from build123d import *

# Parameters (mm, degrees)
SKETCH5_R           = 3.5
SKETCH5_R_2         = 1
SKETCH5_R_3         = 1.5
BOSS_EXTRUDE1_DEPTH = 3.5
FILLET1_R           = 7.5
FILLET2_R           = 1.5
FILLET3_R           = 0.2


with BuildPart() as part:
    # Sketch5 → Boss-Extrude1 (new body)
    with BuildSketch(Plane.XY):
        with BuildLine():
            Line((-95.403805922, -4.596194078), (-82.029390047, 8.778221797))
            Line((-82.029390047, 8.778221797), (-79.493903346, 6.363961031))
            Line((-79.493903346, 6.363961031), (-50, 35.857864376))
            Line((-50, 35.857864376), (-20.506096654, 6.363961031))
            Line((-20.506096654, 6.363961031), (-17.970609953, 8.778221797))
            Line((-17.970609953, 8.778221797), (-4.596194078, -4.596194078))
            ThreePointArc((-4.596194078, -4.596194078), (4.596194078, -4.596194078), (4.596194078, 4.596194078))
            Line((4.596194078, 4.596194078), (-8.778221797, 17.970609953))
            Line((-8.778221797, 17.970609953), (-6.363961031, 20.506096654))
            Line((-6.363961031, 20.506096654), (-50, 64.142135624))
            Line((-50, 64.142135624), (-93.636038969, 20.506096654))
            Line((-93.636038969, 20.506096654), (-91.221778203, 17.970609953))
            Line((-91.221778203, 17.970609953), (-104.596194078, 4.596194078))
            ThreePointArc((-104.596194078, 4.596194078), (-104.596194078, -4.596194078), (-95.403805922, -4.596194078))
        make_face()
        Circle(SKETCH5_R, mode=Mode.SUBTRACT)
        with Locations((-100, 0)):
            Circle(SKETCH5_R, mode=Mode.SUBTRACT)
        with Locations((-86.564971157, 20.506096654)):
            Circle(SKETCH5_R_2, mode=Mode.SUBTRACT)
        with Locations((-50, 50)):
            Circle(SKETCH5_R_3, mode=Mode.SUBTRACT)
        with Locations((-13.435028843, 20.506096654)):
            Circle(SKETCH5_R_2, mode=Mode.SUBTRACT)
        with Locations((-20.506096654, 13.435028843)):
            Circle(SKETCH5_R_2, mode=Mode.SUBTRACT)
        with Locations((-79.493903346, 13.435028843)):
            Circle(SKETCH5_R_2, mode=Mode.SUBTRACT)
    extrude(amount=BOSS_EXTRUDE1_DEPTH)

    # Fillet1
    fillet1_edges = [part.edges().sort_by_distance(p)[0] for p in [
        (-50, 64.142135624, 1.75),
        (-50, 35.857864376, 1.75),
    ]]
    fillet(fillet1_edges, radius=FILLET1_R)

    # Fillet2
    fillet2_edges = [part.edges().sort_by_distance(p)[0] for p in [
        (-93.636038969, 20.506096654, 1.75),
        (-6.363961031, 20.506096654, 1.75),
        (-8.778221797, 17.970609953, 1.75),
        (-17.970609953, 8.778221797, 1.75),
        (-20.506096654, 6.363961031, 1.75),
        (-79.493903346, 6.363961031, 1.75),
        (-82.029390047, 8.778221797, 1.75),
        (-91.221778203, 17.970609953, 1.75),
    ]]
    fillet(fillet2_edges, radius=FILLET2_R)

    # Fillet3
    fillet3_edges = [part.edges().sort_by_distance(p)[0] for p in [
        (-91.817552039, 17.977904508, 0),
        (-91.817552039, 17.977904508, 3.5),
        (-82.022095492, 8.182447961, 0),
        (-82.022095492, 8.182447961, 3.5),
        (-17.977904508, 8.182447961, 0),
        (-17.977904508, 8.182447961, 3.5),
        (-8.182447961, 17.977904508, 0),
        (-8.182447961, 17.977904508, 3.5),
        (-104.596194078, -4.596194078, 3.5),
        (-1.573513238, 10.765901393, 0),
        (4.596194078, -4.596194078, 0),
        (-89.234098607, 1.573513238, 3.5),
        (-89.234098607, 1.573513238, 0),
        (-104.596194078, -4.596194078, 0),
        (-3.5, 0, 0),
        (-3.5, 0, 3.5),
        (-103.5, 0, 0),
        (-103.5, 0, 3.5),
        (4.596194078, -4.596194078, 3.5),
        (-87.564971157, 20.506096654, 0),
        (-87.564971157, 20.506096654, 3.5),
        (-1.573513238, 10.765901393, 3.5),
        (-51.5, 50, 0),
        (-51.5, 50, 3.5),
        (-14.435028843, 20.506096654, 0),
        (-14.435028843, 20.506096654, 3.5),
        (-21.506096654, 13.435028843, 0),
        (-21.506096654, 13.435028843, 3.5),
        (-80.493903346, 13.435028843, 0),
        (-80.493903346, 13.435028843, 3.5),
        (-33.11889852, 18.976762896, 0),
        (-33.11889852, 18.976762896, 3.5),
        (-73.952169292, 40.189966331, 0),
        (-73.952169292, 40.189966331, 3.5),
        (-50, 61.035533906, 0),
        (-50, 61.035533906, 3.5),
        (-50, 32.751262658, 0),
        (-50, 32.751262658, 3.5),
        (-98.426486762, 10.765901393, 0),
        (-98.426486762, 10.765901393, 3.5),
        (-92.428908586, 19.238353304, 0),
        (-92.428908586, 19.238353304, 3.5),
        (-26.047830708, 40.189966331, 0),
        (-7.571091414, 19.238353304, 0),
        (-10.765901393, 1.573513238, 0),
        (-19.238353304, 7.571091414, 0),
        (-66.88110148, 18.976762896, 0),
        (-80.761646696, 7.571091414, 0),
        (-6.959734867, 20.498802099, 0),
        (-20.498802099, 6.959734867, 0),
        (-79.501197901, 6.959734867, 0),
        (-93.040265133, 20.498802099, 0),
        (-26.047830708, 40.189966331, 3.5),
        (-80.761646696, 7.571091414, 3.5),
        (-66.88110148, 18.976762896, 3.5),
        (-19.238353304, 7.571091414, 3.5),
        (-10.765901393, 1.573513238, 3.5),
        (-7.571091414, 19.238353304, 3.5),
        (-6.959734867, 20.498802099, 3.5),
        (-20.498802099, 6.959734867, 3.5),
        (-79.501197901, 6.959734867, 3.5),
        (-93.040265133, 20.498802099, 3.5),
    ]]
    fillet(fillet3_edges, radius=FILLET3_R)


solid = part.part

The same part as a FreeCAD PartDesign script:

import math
import FreeCAD as App
import Part
import Sketcher
from FreeCAD import Vector
Q = App.Units.Quantity


def edges_at(feature, points):
    """Names of the edges that pass closest to the given points."""
    edges = feature.Shape.Edges
    near = lambda p: min(range(len(edges)), key=lambda i: edges[i].distToShape(Part.Vertex(*p))[0])
    return sorted({f"Edge{near(p) + 1}" for p in points})

doc = App.newDocument("Part")
body = doc.addObject("PartDesign::Body", "Body")

# Sketch on XY plane
sketch1 = doc.addObject("Sketcher::SketchObject", "Sketch")
body.addObject(sketch1)
sketch1.AttachmentSupport = (doc.XY_Plane, [""])
sketch1.MapMode = "FlatFace"
sketch1.addGeometry(Part.LineSegment(Vector(-95.403806, -4.596194, 0), Vector(-82.02939, 8.778222, 0)), False)
sketch1.addGeometry(Part.LineSegment(Vector(-82.02939, 8.778222, 0), Vector(-79.493903, 6.363961, 0)), False)
sketch1.addGeometry(Part.LineSegment(Vector(-79.493903, 6.363961, 0), Vector(-50, 35.857864, 0)), False)
sketch1.addGeometry(Part.LineSegment(Vector(-50, 35.857864, 0), Vector(-20.506097, 6.363961, 0)), False)
sketch1.addGeometry(Part.LineSegment(Vector(-20.506097, 6.363961, 0), Vector(-17.97061, 8.778222, 0)), False)
sketch1.addGeometry(Part.LineSegment(Vector(-17.97061, 8.778222, 0), Vector(-4.596194, -4.596194, 0)), False)
sketch1.addGeometry(Part.ArcOfCircle(Part.Circle(Vector(0, 0, 0), Vector(0, 0, 1), 6.5), math.radians(-135), math.radians(45)), False)
sketch1.addGeometry(Part.LineSegment(Vector(4.596194, 4.596194, 0), Vector(-8.778222, 17.97061, 0)), False)
sketch1.addGeometry(Part.LineSegment(Vector(-8.778222, 17.97061, 0), Vector(-6.363961, 20.506097, 0)), False)
sketch1.addGeometry(Part.LineSegment(Vector(-6.363961, 20.506097, 0), Vector(-50, 64.142136, 0)), False)
sketch1.addGeometry(Part.LineSegment(Vector(-50, 64.142136, 0), Vector(-93.636039, 20.506097, 0)), False)
sketch1.addGeometry(Part.LineSegment(Vector(-93.636039, 20.506097, 0), Vector(-91.221778, 17.97061, 0)), False)
sketch1.addGeometry(Part.LineSegment(Vector(-91.221778, 17.97061, 0), Vector(-104.596194, 4.596194, 0)), False)
sketch1.addGeometry(Part.ArcOfCircle(Part.Circle(Vector(-100, 0, 0), Vector(0, 0, 1), 6.5), math.radians(135), math.radians(315)), False)
sketch1.addGeometry(Part.Circle(Vector(-100, 0, 0), Vector(0, 0, 1), 3.5), False)
sketch1.addGeometry(Part.Circle(Vector(-79.493903, 13.435029, 0), Vector(0, 0, 1), 1), False)
sketch1.addGeometry(Part.Circle(Vector(-86.564971, 20.506097, 0), Vector(0, 0, 1), 1), False)
sketch1.addGeometry(Part.Circle(Vector(0, 0, 0), Vector(0, 0, 1), 3.5), False)
sketch1.addGeometry(Part.Circle(Vector(-20.506097, 13.435029, 0), Vector(0, 0, 1), 1), False)
sketch1.addGeometry(Part.Circle(Vector(-13.435029, 20.506097, 0), Vector(0, 0, 1), 1), False)
sketch1.addGeometry(Part.Circle(Vector(-50, 50, 0), Vector(0, 0, 1), 1.5), False)
sketch1.addConstraint(Sketcher.Constraint("Coincident", 0, 2, 1, 1))
sketch1.addConstraint(Sketcher.Constraint("Coincident", 1, 2, 2, 1))
sketch1.addConstraint(Sketcher.Constraint("Coincident", 2, 2, 3, 1))
sketch1.addConstraint(Sketcher.Constraint("Coincident", 3, 2, 4, 1))
sketch1.addConstraint(Sketcher.Constraint("Coincident", 4, 2, 5, 1))
sketch1.addConstraint(Sketcher.Constraint("Tangent", 5, 2, 6, 1))
sketch1.addConstraint(Sketcher.Constraint("Tangent", 6, 2, 7, 1))
sketch1.addConstraint(Sketcher.Constraint("Coincident", 7, 2, 8, 1))
sketch1.addConstraint(Sketcher.Constraint("Coincident", 8, 2, 9, 1))
sketch1.addConstraint(Sketcher.Constraint("Coincident", 9, 2, 10, 1))
sketch1.addConstraint(Sketcher.Constraint("Coincident", 10, 2, 11, 1))
sketch1.addConstraint(Sketcher.Constraint("Coincident", 11, 2, 12, 1))
sketch1.addConstraint(Sketcher.Constraint("Tangent", 12, 2, 13, 1))
sketch1.addConstraint(Sketcher.Constraint("Tangent", 13, 2, 0, 1))
sketch1.addConstraint(Sketcher.Constraint("Coincident", 6, 3, -1, 1))
sketch1.addConstraint(Sketcher.Constraint("Coincident", 17, 3, -1, 1))
sketch1.addConstraint(Sketcher.Constraint("Coincident", 14, 3, 13, 3))
sketch1.addConstraint(Sketcher.Constraint("Equal", 6, 13))
sketch1.addConstraint(Sketcher.Constraint("Equal", 15, 16))
sketch1.addConstraint(Sketcher.Constraint("Equal", 14, 17))
sketch1.addConstraint(Sketcher.Constraint("Equal", 16, 18))
sketch1.addConstraint(Sketcher.Constraint("Equal", 18, 19))
sketch1.addConstraint(Sketcher.Constraint("PointOnObject", 13, 3, -1))
sketch1.addConstraint(Sketcher.Constraint("Parallel", 0, 2))
sketch1.addConstraint(Sketcher.Constraint("Perpendicular", 2, 3))
sketch1.addConstraint(Sketcher.Constraint("Parallel", 3, 5))
sketch1.addConstraint(Sketcher.Constraint("Parallel", 5, 7))
sketch1.addConstraint(Sketcher.Constraint("Perpendicular", 1, 8))
sketch1.addConstraint(Sketcher.Constraint("Parallel", 7, 9))
sketch1.addConstraint(Sketcher.Constraint("Perpendicular", 9, 10))
sketch1.addConstraint(Sketcher.Constraint("Perpendicular", 4, 11))
sketch1.addConstraint(Sketcher.Constraint("Parallel", 10, 12))
sketch1.addConstraint(Sketcher.Constraint("Horizontal", 15, 3, 18, 3))
sketch1.addConstraint(Sketcher.Constraint("Horizontal", 16, 3, 19, 3))
sketch1.addConstraint(Sketcher.Constraint("Horizontal", 1, 2, 3, 2))
sketch1.addConstraint(Sketcher.Constraint("Horizontal", 0, 2, 4, 2))
sketch1.addConstraint(Sketcher.Constraint("Horizontal", 19, 3, 8, 2))
sketch1.addConstraint(Sketcher.Constraint("Horizontal", 8, 2, 10, 2))
sketch1.addConstraint(Sketcher.Constraint("Horizontal", 7, 2, 11, 2))
sketch1.addConstraint(Sketcher.Constraint("Horizontal", 6, 2, 12, 2))
sketch1.addConstraint(Sketcher.Constraint("Vertical", 15, 3, 1, 2))
sketch1.addConstraint(Sketcher.Constraint("Vertical", 20, 3, 2, 2))
sketch1.addConstraint(Sketcher.Constraint("Vertical", 18, 3, 3, 2))
sketch1.addConstraint(Sketcher.Constraint("Vertical", 2, 2, 9, 2))
sketch1.addConstraint(Sketcher.Constraint("Equal", 5, 7))
sketch1.addConstraint(Sketcher.Constraint("Equal", 4, 8))
sketch1.addConstraint(Sketcher.Constraint("Diameter", 14, Q("7 mm")))
sketch1.addConstraint(Sketcher.Constraint("Diameter", 15, Q("2 mm")))
sketch1.addConstraint(Sketcher.Constraint("Diameter", 20, Q("3 mm")))
sketch1.addConstraint(Sketcher.Constraint("Radius", 6, Q("6.5 mm")))
sketch1.addConstraint(Sketcher.Constraint("DistanceX", 13, 3, -1, 1, Q("100 mm")))
sketch1.addConstraint(Sketcher.Constraint("DistanceY", -1, 1, 20, 3, Q("50 mm")))
sketch1.addConstraint(Sketcher.Constraint("Distance", 0, Q("18.91428 mm")))
sketch1.addConstraint(Sketcher.Constraint("Distance", 1, Q("3.50105 mm")))
sketch1.addConstraint(Sketcher.Constraint("Distance", 2, Q("41.710678 mm")))
sketch1.addConstraint(Sketcher.Constraint("DistanceY", -1, 1, 15, 3, Q("13.435029 mm")))
sketch1.addConstraint(Sketcher.Constraint("DistanceX", 16, 3, -1, 1, Q("86.564971 mm")))
sketch1.addConstraint(Sketcher.Constraint("DistanceX", 19, 3, -1, 1, Q("13.435029 mm")))
pad1 = doc.addObject("PartDesign::Pad", "Pad")
body.addObject(pad1)
pad1.Profile = sketch1
pad1.Length = 3.5
doc.recompute()

fillet = doc.addObject("PartDesign::Fillet", "Fillet")
body.addObject(fillet)
fillet.Base = (pad1, edges_at(pad1, [(-50, 64.142, 1.75), (-50, 35.858, 1.75)]))
fillet.Radius = 7.5
doc.recompute()

fillet2 = doc.addObject("PartDesign::Fillet", "Fillet001")
body.addObject(fillet2)
fillet2.Base = (fillet, edges_at(fillet, [
    (-93.636, 20.506, 1.75),
    (-6.364, 20.506, 1.75),
    (-8.778, 17.971, 1.75),
    (-17.971, 8.778, 1.75),
    (-20.506, 6.364, 1.75),
    (-79.494, 6.364, 1.75),
    (-82.029, 8.778, 1.75),
    (-91.222, 17.971, 1.75),
]))
fillet2.Radius = 1.5
doc.recompute()

fillet3 = doc.addObject("PartDesign::Fillet", "Fillet002")
body.addObject(fillet3)
fillet3.Base = (fillet2, edges_at(fillet2, [
    (-91.818, 17.978, 0),
    (-91.818, 17.978, 3.5),
    (-82.022, 8.182, 0),
    (-82.022, 8.182, 3.5),
    (-17.978, 8.182, 0),
    (-17.978, 8.182, 3.5),
    (-8.182, 17.978, 0),
    (-8.182, 17.978, 3.5),
    (-104.596, -4.596, 3.5),
    (-1.574, 10.766, 0),
    (4.596, -4.596, 0),
    (-89.234, 1.574, 3.5),
    (-89.234, 1.574, 0),
    (-104.596, -4.596, 0),
    (-3.5, 0, 0),
    (-3.5, 0, 3.5),
    (-103.5, 0, 0),
    (-103.5, 0, 3.5),
    (4.596, -4.596, 3.5),
    (-87.565, 20.506, 0),
    (-87.565, 20.506, 3.5),
    (-1.574, 10.766, 3.5),
    (-51.5, 50, 0),
    (-51.5, 50, 3.5),
    (-14.435, 20.506, 0),
    (-14.435, 20.506, 3.5),
    (-21.506, 13.435, 0),
    (-21.506, 13.435, 3.5),
    (-80.494, 13.435, 0),
    (-80.494, 13.435, 3.5),
    (-33.119, 18.977, 0),
    (-33.119, 18.977, 3.5),
    (-73.952, 40.19, 0),
    (-73.952, 40.19, 3.5),
    (-50, 61.036, 0),
    (-50, 61.036, 3.5),
    (-50, 32.751, 0),
    (-50, 32.751, 3.5),
    (-98.426, 10.766, 0),
    (-98.426, 10.766, 3.5),
    (-92.429, 19.238, 0),
    (-92.429, 19.238, 3.5),
    (-26.048, 40.19, 0),
    (-7.571, 19.238, 0),
    (-10.766, 1.574, 0),
    (-19.238, 7.571, 0),
    (-66.881, 18.977, 0),
    (-80.762, 7.571, 0),
    (-6.96, 20.499, 0),
    (-20.499, 6.96, 0),
    (-79.501, 6.96, 0),
    (-93.04, 20.499, 0),
    (-26.048, 40.19, 3.5),
    (-80.762, 7.571, 3.5),
    (-66.881, 18.977, 3.5),
    (-19.238, 7.571, 3.5),
    (-10.766, 1.574, 3.5),
    (-7.571, 19.238, 3.5),
    (-6.96, 20.499, 3.5),
    (-20.499, 6.96, 3.5),
    (-79.501, 6.96, 3.5),
    (-93.04, 20.499, 3.5),
]))
fillet3.Radius = 0.2

doc.recompute()
